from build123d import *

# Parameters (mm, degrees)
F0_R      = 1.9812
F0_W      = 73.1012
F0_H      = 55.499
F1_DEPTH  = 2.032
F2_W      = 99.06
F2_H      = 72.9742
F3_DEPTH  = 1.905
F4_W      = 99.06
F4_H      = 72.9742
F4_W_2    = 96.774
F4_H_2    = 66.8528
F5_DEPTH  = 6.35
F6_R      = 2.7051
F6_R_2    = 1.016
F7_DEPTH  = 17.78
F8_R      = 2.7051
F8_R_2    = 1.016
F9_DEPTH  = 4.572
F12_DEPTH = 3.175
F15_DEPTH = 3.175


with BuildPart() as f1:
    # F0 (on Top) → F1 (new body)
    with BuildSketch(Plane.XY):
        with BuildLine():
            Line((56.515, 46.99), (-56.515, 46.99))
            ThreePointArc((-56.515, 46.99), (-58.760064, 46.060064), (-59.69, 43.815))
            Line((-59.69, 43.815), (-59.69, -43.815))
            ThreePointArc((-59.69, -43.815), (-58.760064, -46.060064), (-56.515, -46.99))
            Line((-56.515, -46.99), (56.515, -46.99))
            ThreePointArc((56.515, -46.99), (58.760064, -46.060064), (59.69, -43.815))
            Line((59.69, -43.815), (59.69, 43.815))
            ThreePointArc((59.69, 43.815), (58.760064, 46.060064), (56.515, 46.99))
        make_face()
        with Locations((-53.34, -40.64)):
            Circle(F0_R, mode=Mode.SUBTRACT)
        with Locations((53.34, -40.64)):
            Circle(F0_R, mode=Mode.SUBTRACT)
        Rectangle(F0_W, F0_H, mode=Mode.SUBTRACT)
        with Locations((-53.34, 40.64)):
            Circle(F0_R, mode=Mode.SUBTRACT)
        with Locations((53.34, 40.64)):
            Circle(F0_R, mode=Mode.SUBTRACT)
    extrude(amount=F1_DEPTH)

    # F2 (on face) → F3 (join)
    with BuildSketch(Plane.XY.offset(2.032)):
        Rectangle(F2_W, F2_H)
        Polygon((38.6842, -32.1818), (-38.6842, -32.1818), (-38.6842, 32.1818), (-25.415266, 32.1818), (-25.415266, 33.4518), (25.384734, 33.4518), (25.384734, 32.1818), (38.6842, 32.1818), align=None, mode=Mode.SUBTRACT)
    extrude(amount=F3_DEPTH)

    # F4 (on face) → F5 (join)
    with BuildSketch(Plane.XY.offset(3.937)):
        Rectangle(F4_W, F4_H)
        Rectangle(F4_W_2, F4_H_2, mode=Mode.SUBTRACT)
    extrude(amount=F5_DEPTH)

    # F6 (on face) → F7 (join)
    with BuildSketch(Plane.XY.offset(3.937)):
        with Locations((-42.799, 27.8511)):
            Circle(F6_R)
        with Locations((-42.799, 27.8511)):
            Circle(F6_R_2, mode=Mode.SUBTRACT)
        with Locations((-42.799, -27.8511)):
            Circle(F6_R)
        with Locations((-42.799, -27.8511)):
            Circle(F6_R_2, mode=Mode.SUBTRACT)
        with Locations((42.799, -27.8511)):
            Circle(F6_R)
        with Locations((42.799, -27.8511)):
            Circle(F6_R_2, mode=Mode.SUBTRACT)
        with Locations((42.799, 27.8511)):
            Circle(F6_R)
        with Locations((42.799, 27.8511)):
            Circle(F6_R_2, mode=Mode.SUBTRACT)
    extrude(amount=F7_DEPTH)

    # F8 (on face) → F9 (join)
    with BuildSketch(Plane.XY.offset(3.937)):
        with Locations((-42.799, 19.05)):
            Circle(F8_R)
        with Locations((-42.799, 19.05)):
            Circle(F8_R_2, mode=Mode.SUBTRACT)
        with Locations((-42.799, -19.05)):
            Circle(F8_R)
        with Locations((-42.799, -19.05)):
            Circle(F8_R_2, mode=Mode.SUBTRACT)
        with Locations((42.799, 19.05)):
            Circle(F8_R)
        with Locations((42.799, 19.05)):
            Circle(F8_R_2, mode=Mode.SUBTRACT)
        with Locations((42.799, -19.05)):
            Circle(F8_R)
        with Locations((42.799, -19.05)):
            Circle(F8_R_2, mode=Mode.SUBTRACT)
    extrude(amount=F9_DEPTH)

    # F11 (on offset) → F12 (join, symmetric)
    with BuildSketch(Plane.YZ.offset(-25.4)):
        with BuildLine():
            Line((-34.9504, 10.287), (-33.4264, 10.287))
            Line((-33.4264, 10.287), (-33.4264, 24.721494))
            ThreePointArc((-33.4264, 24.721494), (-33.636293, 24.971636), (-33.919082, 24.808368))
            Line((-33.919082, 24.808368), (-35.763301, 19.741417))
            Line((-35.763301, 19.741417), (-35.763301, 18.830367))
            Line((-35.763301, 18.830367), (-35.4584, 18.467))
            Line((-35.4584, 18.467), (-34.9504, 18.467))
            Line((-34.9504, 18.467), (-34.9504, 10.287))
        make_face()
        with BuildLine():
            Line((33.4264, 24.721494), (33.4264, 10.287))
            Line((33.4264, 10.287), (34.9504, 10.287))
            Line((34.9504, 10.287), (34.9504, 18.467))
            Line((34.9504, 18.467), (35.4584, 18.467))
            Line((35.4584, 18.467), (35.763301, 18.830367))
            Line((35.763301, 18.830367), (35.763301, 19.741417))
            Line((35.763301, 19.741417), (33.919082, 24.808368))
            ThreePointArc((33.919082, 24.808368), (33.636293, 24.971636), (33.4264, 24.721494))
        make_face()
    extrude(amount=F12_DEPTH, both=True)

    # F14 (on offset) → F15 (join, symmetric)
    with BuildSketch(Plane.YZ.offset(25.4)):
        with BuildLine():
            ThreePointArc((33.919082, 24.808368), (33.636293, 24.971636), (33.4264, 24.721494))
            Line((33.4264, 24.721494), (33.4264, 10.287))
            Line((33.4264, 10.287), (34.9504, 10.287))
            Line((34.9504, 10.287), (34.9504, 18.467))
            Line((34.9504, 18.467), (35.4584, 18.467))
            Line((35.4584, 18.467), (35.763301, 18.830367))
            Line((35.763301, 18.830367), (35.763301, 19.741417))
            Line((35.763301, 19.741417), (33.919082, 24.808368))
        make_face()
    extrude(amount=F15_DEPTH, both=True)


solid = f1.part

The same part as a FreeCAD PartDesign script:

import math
import FreeCAD as App
import Part
import Sketcher
from FreeCAD import Vector
Q = App.Units.Quantity


def add_polygon(sketch, points):
    """Adds a closed chain of lines whose ends are joined by coincident constraints."""
    first, n = sketch.GeometryCount, len(points)
    for a, b in zip(points, points[1:] + points[:1]):
        sketch.addGeometry(Part.LineSegment(App.Vector(*a, 0), App.Vector(*b, 0)), False)
    for i in range(n):
        sketch.addConstraint(Sketcher.Constraint("Coincident", first + i, 2, first + (i + 1) % n, 1))

doc = App.newDocument("Part")
body = doc.addObject("PartDesign::Body", "Body")

# Sketch on XY plane
sketch1 = body.newObject("Sketcher::SketchObject", "Sketch")
sketch1.AttachmentSupport = (doc.getObject("XY_Plane"), [""])
sketch1.MapMode = "FlatFace"
sketch1.addGeometry(Part.LineSegment(Vector(56.5, 47, 0), Vector(-56.5, 47, 0)), False)  # 0
sketch1.addGeometry(Part.ArcOfCircle(Part.Circle(Vector(-56.5, 43.8, 0), Vector(0, 0, 1), 3.2), math.radians(90), math.radians(180)), False)  # 1
sketch1.addGeometry(Part.LineSegment(Vector(-59.7, 43.8, 0), Vector(-59.7, -43.8, 0)), False)  # 2
sketch1.addGeometry(Part.ArcOfCircle(Part.Circle(Vector(-56.5, -43.8, 0), Vector(0, 0, 1), 3.2), math.radians(-180), math.radians(-90)), False)  # 3
sketch1.addGeometry(Part.LineSegment(Vector(-56.5, -47, 0), Vector(56.5, -47, 0)), False)  # 4
sketch1.addGeometry(Part.ArcOfCircle(Part.Circle(Vector(56.5, -43.8, 0), Vector(0, 0, 1), 3.2), math.radians(-90), math.radians(0)), False)  # 5
sketch1.addGeometry(Part.LineSegment(Vector(59.7, -43.8, 0), Vector(59.7, 43.8, 0)), False)  # 6
sketch1.addGeometry(Part.ArcOfCircle(Part.Circle(Vector(56.5, 43.8, 0), Vector(0, 0, 1), 3.2), math.radians(0), math.radians(90)), False)  # 7
sketch1.addGeometry(Part.Circle(Vector(-53.3, -40.6, 0), Vector(0, 0, 1), 2), False)  # 8
sketch1.addGeometry(Part.Circle(Vector(53.3, -40.6, 0), Vector(0, 0, 1), 2), False)  # 9
sketch1.addGeometry(Part.Circle(Vector(-53.3, 40.6, 0), Vector(0, 0, 1), 2), False)  # 10
add_polygon(sketch1, [(36.6, -27.7), (-36.6, -27.7), (-36.6, 27.7), (36.6, 27.7)])  # lines 11-14
sketch1.addGeometry(Part.Circle(Vector(53.3, 40.6, 0), Vector(0, 0, 1), 2), False)  # 15
sketch1.addConstraint([
    Sketcher.Constraint("Tangent", 0, 2, 1, 1),
    Sketcher.Constraint("Tangent", 1, 2, 2, 1),
    Sketcher.Constraint("Tangent", 2, 2, 3, 1),
    Sketcher.Constraint("Tangent", 3, 2, 4, 1),
    Sketcher.Constraint("Tangent", 4, 2, 5, 1),
    Sketcher.Constraint("Tangent", 5, 2, 6, 1),
    Sketcher.Constraint("Tangent", 6, 2, 7, 1),
    Sketcher.Constraint("Tangent", 7, 2, 0, 1),
    Sketcher.Constraint("Horizontal", 0),
    Sketcher.Constraint("Vertical", 2),
    Sketcher.Constraint("Horizontal", 4),
    Sketcher.Constraint("Vertical", 6),
    Sketcher.Constraint("Horizontal", 11),
    Sketcher.Constraint("Vertical", 12),
    Sketcher.Constraint("Horizontal", 13),
    Sketcher.Constraint("Vertical", 14),
    Sketcher.Constraint("Equal", 1, 3),
    Sketcher.Constraint("Equal", 3, 5),
    Sketcher.Constraint("Equal", 5, 7),
    Sketcher.Constraint("Equal", 8, 9),
    Sketcher.Constraint("Equal", 9, 10),
    Sketcher.Constraint("Equal", 10, 15),
    Sketcher.Constraint("Symmetric", 1, 3, 5, 3, -1, 1),
    Sketcher.Constraint("Symmetric", 9, 3, 10, 3, -1, 1),
    Sketcher.Constraint("Symmetric", 8, 3, 15, 3, -1, 1),
    Sketcher.Constraint("Symmetric", 11, 2, 13, 2, -1, 1),
    Sketcher.Constraint("Symmetric", 8, 3, 9, 3, -2),
    Sketcher.Constraint("Diameter", 8, Q("0.156 in")),
    Sketcher.Constraint("Radius", 1, Q("0.125 in")),
    Sketcher.Constraint("DistanceX", 0, 2, 0, 1, Q("4.45 in")),
    Sketcher.Constraint("DistanceY", 2, 2, 2, 1, Q("3.45 in")),
    Sketcher.Constraint("DistanceX", 8, 3, -1, 1, Q("2.1 in")),
    Sketcher.Constraint("DistanceY", 8, 3, -1, 1, Q("1.6 in")),
    Sketcher.Constraint("DistanceX", 11, 2, 11, 1, Q("2.878 in")),
    Sketcher.Constraint("DistanceY", 12, 1, 12, 2, Q("2.185 in")),
])
pad1 = body.newObject("PartDesign::Pad", "Pad")
pad1.Profile = sketch1
pad1.Length = Q("0.08 in")

# Sketch on XY plane
sketch2 = body.newObject("Sketcher::SketchObject", "Sketch001")
sketch2.AttachmentSupport = (doc.getObject("XY_Plane"), [""])
sketch2.MapMode = "FlatFace"
sketch2.AttachmentOffset = App.Placement(Vector(0, 0, 0.08 * 25.4), App.Rotation())
add_polygon(sketch2, [(-49.5, 36.5), (-49.5, -36.5), (49.5, -36.5), (49.5, 36.5)])  # lines 0-3
add_polygon(sketch2, [(38.7, 32.2), (38.7, -32.2), (-38.7, -32.2), (-38.7, 32.2), (-25.4, 32.2), (-25.4, 33.5), (25.4, 33.5), (25.4, 32.2)])  # lines 4-11
sketch2.addConstraint([
    Sketcher.Constraint("Vertical", 0),
    Sketcher.Constraint("Horizontal", 1),
    Sketcher.Constraint("Vertical", 2),
    Sketcher.Constraint("Horizontal", 3),
    Sketcher.Constraint("Vertical", 4),
    Sketcher.Constraint("Horizontal", 5),
    Sketcher.Constraint("Vertical", 6),
    Sketcher.Constraint("Horizontal", 7),
    Sketcher.Constraint("Vertical", 8),
    Sketcher.Constraint("Horizontal", 9),
    Sketcher.Constraint("Vertical", 10),
    Sketcher.Constraint("Horizontal", 11),
    Sketcher.Constraint("Symmetric", 0, 2, 2, 2, -1, 1),
    Sketcher.Constraint("Symmetric", 4, 2, 6, 2, -1, 1),
    Sketcher.Constraint("Horizontal", 7, 2, 10, 2),
    Sketcher.Constraint("DistanceX", 9, 1, 9, 2, Q("2 in")),
    Sketcher.Constraint("DistanceX", 1, 1, 1, 2, Q("3.9 in")),
    Sketcher.Constraint("DistanceY", 8, 1, 8, 2, Q("0.05 in")),
    Sketcher.Constraint("DistanceX", 5, 2, 5, 1, Q("3.046 in")),
    Sketcher.Constraint("DistanceY", 0, 2, 0, 1, Q("2.873 in")),
    Sketcher.Constraint("DistanceY", 4, 2, 4, 1, Q("2.534 in")),
    Sketcher.Constraint("DistanceX", 7, 1, 7, 2, 13.268934),
])
pad2 = body.newObject("PartDesign::Pad", "Pad001")
pad2.Profile = sketch2
pad2.Length = Q("0.075 in")

# Sketch on XY plane
sketch3 = body.newObject("Sketcher::SketchObject", "Sketch002")
sketch3.AttachmentSupport = (doc.getObject("XY_Plane"), [""])
sketch3.MapMode = "FlatFace"
sketch3.AttachmentOffset = App.Placement(Vector(0, 0, 0.155 * 25.4), App.Rotation())
add_polygon(sketch3, [(-50, 36), (-50, -36), (50, -36), (50, 36)])  # lines 0-3
add_polygon(sketch3, [(48, -33), (-48, -33), (-48, 33), (48, 33)])  # lines 4-7
sketch3.addConstraint([
    Sketcher.Constraint("Vertical", 0),
    Sketcher.Constraint("Horizontal", 1),
    Sketcher.Constraint("Vertical", 2),
    Sketcher.Constraint("Horizontal", 3),
    Sketcher.Constraint("Horizontal", 4),
    Sketcher.Constraint("Vertical", 5),
    Sketcher.Constraint("Horizontal", 6),
    Sketcher.Constraint("Vertical", 7),
    Sketcher.Constraint("Symmetric", 0, 2, 2, 2, -1, 1),
    Sketcher.Constraint("Symmetric", 4, 2, 6, 2, -1, 1),
    Sketcher.Constraint("DistanceX", 1, 1, 1, 2, Q("3.9 in")),
    Sketcher.Constraint("DistanceX", 4, 2, 4, 1, Q("3.81 in")),
    Sketcher.Constraint("DistanceY", 0, 2, 0, 1, Q("2.873 in")),
    Sketcher.Constraint("DistanceY", 5, 1, 5, 2, Q("2.632 in")),
])
pad3 = body.newObject("PartDesign::Pad", "Pad002")
pad3.Profile = sketch3
pad3.Length = Q("0.25 in")

# Sketch on XY plane
sketch4 = body.newObject("Sketcher::SketchObject", "Sketch003")
sketch4.AttachmentSupport = (doc.getObject("XY_Plane"), [""])
sketch4.MapMode = "FlatFace"
sketch4.AttachmentOffset = App.Placement(Vector(0, 0, 0.155 * 25.4), App.Rotation())
sketch4.addGeometry([
    Part.Circle(Vector(-42.8, 27.9, 0), Vector(0, 0, 1), 2.7),  # 0
    Part.Circle(Vector(-42.8, 27.9, 0), Vector(0, 0, 1), 1),  # 1
    Part.Circle(Vector(-42.8, -27.9, 0), Vector(0, 0, 1), 2.7),  # 2
    Part.Circle(Vector(-42.8, -27.9, 0), Vector(0, 0, 1), 1),  # 3
    Part.Circle(Vector(42.8, -27.9, 0), Vector(0, 0, 1), 2.7),  # 4
    Part.Circle(Vector(42.8, -27.9, 0), Vector(0, 0, 1), 1),  # 5
    Part.Circle(Vector(42.8, 27.9, 0), Vector(0, 0, 1), 2.7),  # 6
    Part.Circle(Vector(42.8, 27.9, 0), Vector(0, 0, 1), 1),  # 7
], False)
sketch4.addConstraint([
    Sketcher.Constraint("Coincident", 1, 3, 0, 3),
    Sketcher.Constraint("Coincident", 3, 3, 2, 3),
    Sketcher.Constraint("Coincident", 5, 3, 4, 3),
    Sketcher.Constraint("Coincident", 7, 3, 6, 3),
    Sketcher.Constraint("Equal", 0, 2),
    Sketcher.Constraint("Equal", 1, 3),
    Sketcher.Constraint("Equal", 2, 4),
    Sketcher.Constraint("Equal", 3, 5),
    Sketcher.Constraint("Equal", 4, 6),
    Sketcher.Constraint("Equal", 5, 7),
    Sketcher.Constraint("Symmetric", 0, 3, 4, 3, -1, 1),
    Sketcher.Constraint("Symmetric", 2, 3, 6, 3, -1, 1),
    Sketcher.Constraint("Symmetric", 2, 3, 4, 3, -2),
    Sketcher.Constraint("Diameter", 1, Q("0.08 in")),
    Sketcher.Constraint("Diameter", 0, Q("0.213 in")),
    Sketcher.Constraint("DistanceX", 2, 3, 4, 3, Q("3.37 in")),
    Sketcher.Constraint("DistanceY", 2, 3, 0, 3, Q("2.193 in")),
])
pad4 = body.newObject("PartDesign::Pad", "Pad003")
pad4.Profile = sketch4
pad4.Length = Q("0.7 in")

# Sketch on XY plane
sketch5 = body.newObject("Sketcher::SketchObject", "Sketch004")
sketch5.AttachmentSupport = (doc.getObject("XY_Plane"), [""])
sketch5.MapMode = "FlatFace"
sketch5.AttachmentOffset = App.Placement(Vector(0, 0, 0.155 * 25.4), App.Rotation())
sketch5.addGeometry([
    Part.Circle(Vector(-42.8, 19.1, 0), Vector(0, 0, 1), 2.7),  # 0
    Part.Circle(Vector(-42.8, 19.1, 0), Vector(0, 0, 1), 1),  # 1
    Part.Circle(Vector(-42.8, -19.1, 0), Vector(0, 0, 1), 2.7),  # 2
    Part.Circle(Vector(-42.8, -19.1, 0), Vector(0, 0, 1), 1),  # 3
    Part.Circle(Vector(42.8, 19.1, 0), Vector(0, 0, 1), 2.7),  # 4
    Part.Circle(Vector(42.8, 19.1, 0), Vector(0, 0, 1), 1),  # 5
    Part.Circle(Vector(42.8, -19.1, 0), Vector(0, 0, 1), 2.7),  # 6
    Part.Circle(Vector(42.8, -19.1, 0), Vector(0, 0, 1), 1),  # 7
], False)
sketch5.addConstraint([
    Sketcher.Constraint("Coincident", 1, 3, 0, 3),
    Sketcher.Constraint("Coincident", 3, 3, 2, 3),
    Sketcher.Constraint("Coincident", 5, 3, 4, 3),
    Sketcher.Constraint("Coincident", 7, 3, 6, 3),
    Sketcher.Constraint("Equal", 0, 2),
    Sketcher.Constraint("Equal", 1, 3),
    Sketcher.Constraint("Equal", 2, 4),
    Sketcher.Constraint("Equal", 3, 5),
    Sketcher.Constraint("Equal", 4, 6),
    Sketcher.Constraint("Equal", 5, 7),
    Sketcher.Constraint("Symmetric", 2, 3, 4, 3, -1, 1),
    Sketcher.Constraint("Symmetric", 0, 3, 6, 3, -1, 1),
    Sketcher.Constraint("Symmetric", 0, 3, 4, 3, -2),
    Sketcher.Constraint("Diameter", 1, Q("0.08 in")),
    Sketcher.Constraint("Diameter", 0, Q("0.213 in")),
    Sketcher.Constraint("DistanceY", 2, 3, 0, 3, Q("1.5 in")),
    Sketcher.Constraint("DistanceX", 0, 3, 4, 3, Q("3.37 in")),
])
pad5 = body.newObject("PartDesign::Pad", "Pad004")
pad5.Profile = sketch5
pad5.Length = Q("0.18 in")

# Sketch on YZ plane
sketch6 = body.newObject("Sketcher::SketchObject", "Sketch005")
sketch6.AttachmentSupport = (doc.getObject("YZ_Plane"), [""])
sketch6.MapMode = "FlatFace"
sketch6.AttachmentOffset = App.Placement(Vector(0, 0, -1 * 25.4), App.Rotation())
sketch6.addGeometry([
    Part.LineSegment(Vector(-34.95, 10.29, 0), Vector(-33.43, 10.29, 0)),  # 0
    Part.LineSegment(Vector(-33.43, 10.29, 0), Vector(-33.43, 24.72, 0)),  # 1
    Part.ArcOfCircle(Part.Circle(Vector(-33.68, 24.72, 0), Vector(0, 0, 1), 0.25), math.radians(0), math.radians(160)),  # 2
    Part.LineSegment(Vector(-33.92, 24.81, 0), Vector(-35.76, 19.74, 0)),  # 3
    Part.LineSegment(Vector(-35.76, 19.74, 0), Vector(-35.76, 18.83, 0)),  # 4
    Part.LineSegment(Vector(-35.76, 18.83, 0), Vector(-35.46, 18.47, 0)),  # 5
    Part.LineSegment(Vector(-35.46, 18.47, 0), Vector(-34.95, 18.47, 0)),  # 6
    Part.LineSegment(Vector(-34.95, 18.47, 0), Vector(-34.95, 10.29, 0)),  # 7
    Part.LineSegment(Vector(33.43, 24.72, 0), Vector(33.43, 10.29, 0)),  # 8
    Part.LineSegment(Vector(33.43, 10.29, 0), Vector(34.95, 10.29, 0)),  # 9
    Part.LineSegment(Vector(34.95, 10.29, 0), Vector(34.95, 18.47, 0)),  # 10
    Part.LineSegment(Vector(34.95, 18.47, 0), Vector(35.46, 18.47, 0)),  # 11
    Part.LineSegment(Vector(35.46, 18.47, 0), Vector(35.76, 18.83, 0)),  # 12
    Part.LineSegment(Vector(35.76, 18.83, 0), Vector(35.76, 19.74, 0)),  # 13
    Part.LineSegment(Vector(35.76, 19.74, 0), Vector(33.92, 24.81, 0)),  # 14
    Part.ArcOfCircle(Part.Circle(Vector(33.68, 24.72, 0), Vector(0, 0, 1), 0.25), math.radians(20), math.radians(180)),  # 15
], False)
sketch6.addConstraint([
    Sketcher.Constraint("Coincident", 0, 2, 1, 1),
    Sketcher.Constraint("Coincident", 1, 2, 2, 1),
    Sketcher.Constraint("Tangent", 2, 2, 3, 1),
    Sketcher.Constraint("Coincident", 3, 2, 4, 1),
    Sketcher.Constraint("Coincident", 4, 2, 5, 1),
    Sketcher.Constraint("Coincident", 5, 2, 6, 1),
    Sketcher.Constraint("Coincident", 6, 2, 7, 1),
    Sketcher.Constraint("Coincident", 7, 2, 0, 1),
    Sketcher.Constraint("Coincident", 8, 2, 9, 1),
    Sketcher.Constraint("Coincident", 9, 2, 10, 1),
    Sketcher.Constraint("Coincident", 10, 2, 11, 1),
    Sketcher.Constraint("Coincident", 11, 2, 12, 1),
    Sketcher.Constraint("Coincident", 12, 2, 13, 1),
    Sketcher.Constraint("Coincident", 13, 2, 14, 1),
    Sketcher.Constraint("Tangent", 14, 2, 15, 1),
    Sketcher.Constraint("Coincident", 15, 2, 8, 1),
    Sketcher.Constraint("Horizontal", 0),
    Sketcher.Constraint("Vertical", 1),
    Sketcher.Constraint("Vertical", 4),
    Sketcher.Constraint("Horizontal", 6),
    Sketcher.Constraint("Vertical", 7),
    Sketcher.Constraint("Vertical", 8),
    Sketcher.Constraint("Horizontal", 9),
    Sketcher.Constraint("Vertical", 10),
    Sketcher.Constraint("Horizontal", 11),
    Sketcher.Constraint("Vertical", 13),
    Sketcher.Constraint("Equal", 2, 15),
    Sketcher.Constraint("Symmetric", 2, 3, 15, 3, -2),
    Sketcher.Constraint("Symmetric", 7, 2, 9, 2, -2),
    Sketcher.Constraint("Symmetric", 5, 2, 11, 2, -2),
    Sketcher.Constraint("Symmetric", 4, 2, 12, 2, -2),
    Sketcher.Constraint("Horizontal", 15, 3, 1, 2),
    Sketcher.Constraint("Horizontal", 3, 2, 13, 2),
    Sketcher.Constraint("Horizontal", 1, 2, 15, 2),
    Sketcher.Constraint("Radius", 2, Q("0.01 in")),
    Sketcher.Constraint("Angle", 3, Q("-109.999997 deg")),
    Sketcher.Constraint("Angle", 5, Q("-50.000011 deg")),
    Sketcher.Constraint("DistanceX", 0, 1, 0, 2, Q("0.06 in")),
    Sketcher.Constraint("DistanceX", 6, 1, 6, 2, Q("0.02 in")),
    Sketcher.Constraint("DistanceX", 2, 3, -1, 1, Q("1.326 in")),
    Sketcher.Constraint("DistanceY", -1, 1, 0, 2, Q("0.405 in")),
    Sketcher.Constraint("DistanceY", 7, 2, 7, 1, 8.18),
    Sketcher.Constraint("DistanceY", 4, 2, 4, 1, 0.91105),
    Sketcher.Constraint("DistanceX", 3, 2, -1, 1, 35.763301),
])
pad6 = body.newObject("PartDesign::Pad", "Pad005")
pad6.Profile = sketch6
pad6.Length = Q("0.25 in")
pad6.Midplane = True

# Sketch on YZ plane
sketch7 = body.newObject("Sketcher::SketchObject", "Sketch006")
sketch7.AttachmentSupport = (doc.getObject("YZ_Plane"), [""])
sketch7.MapMode = "FlatFace"
sketch7.AttachmentOffset = App.Placement(Vector(0, 0, 1 * 25.4), App.Rotation())
sketch7.addGeometry([
    Part.ArcOfCircle(Part.Circle(Vector(33.68, 24.72, 0), Vector(0, 0, 1), 0.25), math.radians(20), math.radians(180)),  # 0
    Part.LineSegment(Vector(33.43, 24.72, 0), Vector(33.43, 10.29, 0)),  # 1
    Part.LineSegment(Vector(33.43, 10.29, 0), Vector(34.95, 10.29, 0)),  # 2
    Part.LineSegment(Vector(34.95, 10.29, 0), Vector(34.95, 18.47, 0)),  # 3
    Part.LineSegment(Vector(34.95, 18.47, 0), Vector(35.46, 18.47, 0)),  # 4
    Part.LineSegment(Vector(35.46, 18.47, 0), Vector(35.76, 18.83, 0)),  # 5
    Part.LineSegment(Vector(35.76, 18.83, 0), Vector(35.76, 19.74, 0)),  # 6
    Part.LineSegment(Vector(35.76, 19.74, 0), Vector(33.92, 24.81, 0)),  # 7
], False)
sketch7.addConstraint([
    Sketcher.Constraint("Coincident", 0, 2, 1, 1),
    Sketcher.Constraint("Coincident", 1, 2, 2, 1),
    Sketcher.Constraint("Coincident", 2, 2, 3, 1),
    Sketcher.Constraint("Coincident", 3, 2, 4, 1),
    Sketcher.Constraint("Coincident", 4, 2, 5, 1),
    Sketcher.Constraint("Coincident", 5, 2, 6, 1),
    Sketcher.Constraint("Coincident", 6, 2, 7, 1),
    Sketcher.Constraint("Tangent", 7, 2, 0, 1),
    Sketcher.Constraint("Vertical", 1),
    Sketcher.Constraint("Horizontal", 2),
    Sketcher.Constraint("Vertical", 3),
    Sketcher.Constraint("Horizontal", 4),
    Sketcher.Constraint("Vertical", 6),
    Sketcher.Constraint("Radius", 0, Q("0.01 in")),
    Sketcher.Constraint("Angle", 5, Q("50.000011 deg")),
    Sketcher.Constraint("Angle", 7, Q("109.999997 deg")),
    Sketcher.Constraint("DistanceX", 2, 1, 2, 2, Q("0.06 in")),
    Sketcher.Constraint("DistanceX", 4, 1, 4, 2, Q("0.02 in")),
    Sketcher.Constraint("DistanceX", -1, 1, 0, 3, Q("1.326 in")),
    Sketcher.Constraint("DistanceY", -1, 1, 1, 2, Q("0.405 in")),
    Sketcher.Constraint("DistanceY", 3, 1, 3, 2, 8.18),
    Sketcher.Constraint("DistanceY", 6, 1, 6, 2, 0.91105),
    Sketcher.Constraint("DistanceX", -1, 1, 5, 2, 35.763301),
    Sketcher.Constraint("DistanceY", 1, 2, 1, 1, 14.434494),
])
pad7 = body.newObject("PartDesign::Pad", "Pad006")
pad7.Profile = sketch7
pad7.Length = Q("0.25 in")
pad7.Midplane = True

doc.recompute()
